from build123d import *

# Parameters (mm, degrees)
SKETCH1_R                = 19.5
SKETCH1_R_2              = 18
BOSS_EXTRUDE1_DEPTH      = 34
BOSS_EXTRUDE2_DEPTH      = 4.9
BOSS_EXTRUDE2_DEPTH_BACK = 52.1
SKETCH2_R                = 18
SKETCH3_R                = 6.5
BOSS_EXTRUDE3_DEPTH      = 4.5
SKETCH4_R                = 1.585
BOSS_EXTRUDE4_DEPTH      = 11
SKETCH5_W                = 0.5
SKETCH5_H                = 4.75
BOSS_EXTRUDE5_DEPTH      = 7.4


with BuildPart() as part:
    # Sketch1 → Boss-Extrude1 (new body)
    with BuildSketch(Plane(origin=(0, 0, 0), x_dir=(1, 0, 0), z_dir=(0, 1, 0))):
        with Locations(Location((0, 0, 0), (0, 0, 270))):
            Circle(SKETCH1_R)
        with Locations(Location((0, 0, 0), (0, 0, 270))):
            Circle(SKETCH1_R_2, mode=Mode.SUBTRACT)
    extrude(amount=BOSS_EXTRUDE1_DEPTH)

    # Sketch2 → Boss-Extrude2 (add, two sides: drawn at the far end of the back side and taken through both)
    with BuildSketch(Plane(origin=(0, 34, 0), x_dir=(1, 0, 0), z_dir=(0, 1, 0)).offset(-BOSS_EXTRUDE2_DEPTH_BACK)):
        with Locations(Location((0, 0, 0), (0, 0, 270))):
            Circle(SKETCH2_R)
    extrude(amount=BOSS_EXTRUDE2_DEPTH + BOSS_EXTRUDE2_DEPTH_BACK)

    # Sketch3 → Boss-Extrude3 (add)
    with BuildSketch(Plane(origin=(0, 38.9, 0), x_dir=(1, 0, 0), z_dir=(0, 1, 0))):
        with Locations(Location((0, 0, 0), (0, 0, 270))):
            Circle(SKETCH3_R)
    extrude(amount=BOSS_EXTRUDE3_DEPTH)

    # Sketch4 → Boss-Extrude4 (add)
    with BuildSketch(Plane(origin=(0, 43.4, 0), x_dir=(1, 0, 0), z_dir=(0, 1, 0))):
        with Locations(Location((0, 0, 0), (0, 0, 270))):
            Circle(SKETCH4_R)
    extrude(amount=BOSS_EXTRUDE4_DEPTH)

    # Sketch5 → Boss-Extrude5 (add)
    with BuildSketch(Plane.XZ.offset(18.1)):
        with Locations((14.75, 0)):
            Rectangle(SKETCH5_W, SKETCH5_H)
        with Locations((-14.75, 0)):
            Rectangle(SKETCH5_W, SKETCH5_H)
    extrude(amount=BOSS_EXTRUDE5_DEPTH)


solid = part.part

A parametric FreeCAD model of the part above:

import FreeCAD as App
import Part
import Sketcher


def add_polygon(sketch, points):
    """Adds a closed chain of lines whose ends are joined by coincident constraints."""
    first, n = sketch.GeometryCount, len(points)
    for a, b in zip(points, points[1:] + points[:1]):
        sketch.addGeometry(Part.LineSegment(App.Vector(*a, 0), App.Vector(*b, 0)), False)
    for i in range(n):
        sketch.addConstraint(Sketcher.Constraint("Coincident", first + i, 2, first + (i + 1) % n, 1))

doc = App.newDocument("Part")
params = doc.addObject("Spreadsheet::Sheet", "Params")
for row, (alias, value) in enumerate([
    ("sketch1_diameter", "39 mm"),
    ("sketch1_diameter2", "36 mm"),
    ("pad1_length", "34 mm"),
    ("sketch2_diameter", "36 mm"),
    ("pad2_length", "4.9 mm"),
    ("pad2_length2", "52.1 mm"),
    ("sketch3_diameter", "13 mm"),
    ("pad3_length", "4.5 mm"),
    ("sketch4_diameter", "3.17 mm"),
    ("pad4_length", "11 mm"),
    ("sketch5_width", "0.5 mm"),
    ("sketch5_height", "4.75 mm"),
    ("pad5_length", "7.4 mm"),
], start=1):
    params.set(f"A{row}", alias)
    params.set(f"B{row}", "=" + value)
    params.setAlias(f"B{row}", alias)

body = doc.addObject("PartDesign::Body", "Body")

sketch1 = body.newObject("Sketcher::SketchObject", "Sketch")
sketch1.AttachmentSupport = (doc.getObject("XZ_Plane"), [""])
sketch1.MapMode = "FlatFace"
sketch1.addGeometry(Part.Circle(App.Vector(0, 0, 0), App.Vector(0, 0, 1), 20), False)
sketch1.addGeometry(Part.Circle(App.Vector(0, 0, 0), App.Vector(0, 0, 1), 18), False)
sketch1.addConstraint(Sketcher.Constraint("Coincident", 0, 3, -1, 1))
sketch1.addConstraint(Sketcher.Constraint("Coincident", 1, 3, -1, 1))
sketch1.addConstraint(Sketcher.Constraint("Diameter", 0, 39.0))
sketch1.addConstraint(Sketcher.Constraint("Diameter", 1, 36.0))
sketch1.setExpression("Constraints[2]", "Params.sketch1_diameter")
sketch1.setExpression("Constraints[3]", "Params.sketch1_diameter2")
pad1 = body.newObject("PartDesign::Pad", "Pad")
pad1.Profile = sketch1
pad1.setExpression("Length", "Params.pad1_length")
pad1.Reversed = True

sketch2 = body.newObject("Sketcher::SketchObject", "Sketch001")
sketch2.AttachmentSupport = (doc.getObject("XZ_Plane"), [""])
sketch2.MapMode = "FlatFace"
sketch2.AttachmentOffset = App.Placement(App.Vector(0, 0, -34), App.Rotation())
sketch2.addGeometry(Part.Circle(App.Vector(0, 0, 0), App.Vector(0, 0, 1), 18), False)
sketch2.addConstraint(Sketcher.Constraint("Coincident", 0, 3, -1, 1))
sketch2.addConstraint(Sketcher.Constraint("Diameter", 0, 36.0))
sketch2.setExpression("Constraints[1]", "Params.sketch2_diameter")
pad2 = body.newObject("PartDesign::Pad", "Pad001")
pad2.Profile = sketch2
pad2.Type = "TwoLengths"
pad2.setExpression("Length", "Params.pad2_length")
pad2.setExpression("Length2", "Params.pad2_length2")
pad2.Reversed = True

sketch3 = body.newObject("Sketcher::SketchObject", "Sketch002")
sketch3.AttachmentSupport = (doc.getObject("XZ_Plane"), [""])
sketch3.MapMode = "FlatFace"
sketch3.AttachmentOffset = App.Placement(App.Vector(0, 0, -38.9), App.Rotation())
sketch3.addGeometry(Part.Circle(App.Vector(0, 0, 0), App.Vector(0, 0, 1), 6), False)
sketch3.addConstraint(Sketcher.Constraint("Coincident", 0, 3, -1, 1))
sketch3.addConstraint(Sketcher.Constraint("Diameter", 0, 13.0))
sketch3.setExpression("Constraints[1]", "Params.sketch3_diameter")
pad3 = body.newObject("PartDesign::Pad", "Pad002")
pad3.Profile = sketch3
pad3.setExpression("Length", "Params.pad3_length")
pad3.Reversed = True

sketch4 = body.newObject("Sketcher::SketchObject", "Sketch003")
sketch4.AttachmentSupport = (doc.getObject("XZ_Plane"), [""])
sketch4.MapMode = "FlatFace"
sketch4.AttachmentOffset = App.Placement(App.Vector(0, 0, -43.4), App.Rotation())
sketch4.addGeometry(Part.Circle(App.Vector(0, 0, 0), App.Vector(0, 0, 1), 1.6), False)
sketch4.addConstraint(Sketcher.Constraint("Coincident", 0, 3, -1, 1))
sketch4.addConstraint(Sketcher.Constraint("Diameter", 0, 3.17))
sketch4.setExpression("Constraints[1]", "Params.sketch4_diameter")
pad4 = body.newObject("PartDesign::Pad", "Pad003")
pad4.Profile = sketch4
pad4.setExpression("Length", "Params.pad4_length")
pad4.Reversed = True

sketch5 = body.newObject("Sketcher::SketchObject", "Sketch004")
sketch5.AttachmentSupport = (doc.getObject("XZ_Plane"), [""])
sketch5.MapMode = "FlatFace"
sketch5.AttachmentOffset = App.Placement(App.Vector(0, 0, 18.1), App.Rotation())
add_polygon(sketch5, [(14.5, 2.4), (14.5, -2.4), (15, -2.4), (15, 2.4)])
add_polygon(sketch5, [(-15, 2.4), (-15, -2.4), (-14.5, -2.4), (-14.5, 2.4)])
sketch5.addConstraint(Sketcher.Constraint("Vertical", 0))
sketch5.addConstraint(Sketcher.Constraint("Horizontal", 1))
sketch5.addConstraint(Sketcher.Constraint("Vertical", 2))
sketch5.addConstraint(Sketcher.Constraint("Horizontal", 3))
sketch5.addConstraint(Sketcher.Constraint("Vertical", 4))
sketch5.addConstraint(Sketcher.Constraint("Horizontal", 5))
sketch5.addConstraint(Sketcher.Constraint("Vertical", 6))
sketch5.addConstraint(Sketcher.Constraint("Horizontal", 7))
sketch5.addConstraint(Sketcher.Constraint("Symmetric", 2, 2, 4, 2, -1, 1))
sketch5.addConstraint(Sketcher.Constraint("Symmetric", 0, 2, 6, 2, -1, 1))
sketch5.addConstraint(Sketcher.Constraint("Horizontal", 1, 2, 4, 2))
sketch5.addConstraint(Sketcher.Constraint("DistanceX", 1, 1, 1, 2, 0.5))
sketch5.addConstraint(Sketcher.Constraint("DistanceX", -1, 1, 1, 2, 15.0))
sketch5.addConstraint(Sketcher.Constraint("DistanceY", 0, 2, 0, 1, 4.75))
sketch5.setExpression("Constraints[19]", "Params.sketch5_width")
sketch5.setExpression("Constraints[21]", "Params.sketch5_height")
pad5 = body.newObject("PartDesign::Pad", "Pad004")
pad5.Profile = sketch5
pad5.setExpression("Length", "Params.pad5_length")

doc.recompute()
